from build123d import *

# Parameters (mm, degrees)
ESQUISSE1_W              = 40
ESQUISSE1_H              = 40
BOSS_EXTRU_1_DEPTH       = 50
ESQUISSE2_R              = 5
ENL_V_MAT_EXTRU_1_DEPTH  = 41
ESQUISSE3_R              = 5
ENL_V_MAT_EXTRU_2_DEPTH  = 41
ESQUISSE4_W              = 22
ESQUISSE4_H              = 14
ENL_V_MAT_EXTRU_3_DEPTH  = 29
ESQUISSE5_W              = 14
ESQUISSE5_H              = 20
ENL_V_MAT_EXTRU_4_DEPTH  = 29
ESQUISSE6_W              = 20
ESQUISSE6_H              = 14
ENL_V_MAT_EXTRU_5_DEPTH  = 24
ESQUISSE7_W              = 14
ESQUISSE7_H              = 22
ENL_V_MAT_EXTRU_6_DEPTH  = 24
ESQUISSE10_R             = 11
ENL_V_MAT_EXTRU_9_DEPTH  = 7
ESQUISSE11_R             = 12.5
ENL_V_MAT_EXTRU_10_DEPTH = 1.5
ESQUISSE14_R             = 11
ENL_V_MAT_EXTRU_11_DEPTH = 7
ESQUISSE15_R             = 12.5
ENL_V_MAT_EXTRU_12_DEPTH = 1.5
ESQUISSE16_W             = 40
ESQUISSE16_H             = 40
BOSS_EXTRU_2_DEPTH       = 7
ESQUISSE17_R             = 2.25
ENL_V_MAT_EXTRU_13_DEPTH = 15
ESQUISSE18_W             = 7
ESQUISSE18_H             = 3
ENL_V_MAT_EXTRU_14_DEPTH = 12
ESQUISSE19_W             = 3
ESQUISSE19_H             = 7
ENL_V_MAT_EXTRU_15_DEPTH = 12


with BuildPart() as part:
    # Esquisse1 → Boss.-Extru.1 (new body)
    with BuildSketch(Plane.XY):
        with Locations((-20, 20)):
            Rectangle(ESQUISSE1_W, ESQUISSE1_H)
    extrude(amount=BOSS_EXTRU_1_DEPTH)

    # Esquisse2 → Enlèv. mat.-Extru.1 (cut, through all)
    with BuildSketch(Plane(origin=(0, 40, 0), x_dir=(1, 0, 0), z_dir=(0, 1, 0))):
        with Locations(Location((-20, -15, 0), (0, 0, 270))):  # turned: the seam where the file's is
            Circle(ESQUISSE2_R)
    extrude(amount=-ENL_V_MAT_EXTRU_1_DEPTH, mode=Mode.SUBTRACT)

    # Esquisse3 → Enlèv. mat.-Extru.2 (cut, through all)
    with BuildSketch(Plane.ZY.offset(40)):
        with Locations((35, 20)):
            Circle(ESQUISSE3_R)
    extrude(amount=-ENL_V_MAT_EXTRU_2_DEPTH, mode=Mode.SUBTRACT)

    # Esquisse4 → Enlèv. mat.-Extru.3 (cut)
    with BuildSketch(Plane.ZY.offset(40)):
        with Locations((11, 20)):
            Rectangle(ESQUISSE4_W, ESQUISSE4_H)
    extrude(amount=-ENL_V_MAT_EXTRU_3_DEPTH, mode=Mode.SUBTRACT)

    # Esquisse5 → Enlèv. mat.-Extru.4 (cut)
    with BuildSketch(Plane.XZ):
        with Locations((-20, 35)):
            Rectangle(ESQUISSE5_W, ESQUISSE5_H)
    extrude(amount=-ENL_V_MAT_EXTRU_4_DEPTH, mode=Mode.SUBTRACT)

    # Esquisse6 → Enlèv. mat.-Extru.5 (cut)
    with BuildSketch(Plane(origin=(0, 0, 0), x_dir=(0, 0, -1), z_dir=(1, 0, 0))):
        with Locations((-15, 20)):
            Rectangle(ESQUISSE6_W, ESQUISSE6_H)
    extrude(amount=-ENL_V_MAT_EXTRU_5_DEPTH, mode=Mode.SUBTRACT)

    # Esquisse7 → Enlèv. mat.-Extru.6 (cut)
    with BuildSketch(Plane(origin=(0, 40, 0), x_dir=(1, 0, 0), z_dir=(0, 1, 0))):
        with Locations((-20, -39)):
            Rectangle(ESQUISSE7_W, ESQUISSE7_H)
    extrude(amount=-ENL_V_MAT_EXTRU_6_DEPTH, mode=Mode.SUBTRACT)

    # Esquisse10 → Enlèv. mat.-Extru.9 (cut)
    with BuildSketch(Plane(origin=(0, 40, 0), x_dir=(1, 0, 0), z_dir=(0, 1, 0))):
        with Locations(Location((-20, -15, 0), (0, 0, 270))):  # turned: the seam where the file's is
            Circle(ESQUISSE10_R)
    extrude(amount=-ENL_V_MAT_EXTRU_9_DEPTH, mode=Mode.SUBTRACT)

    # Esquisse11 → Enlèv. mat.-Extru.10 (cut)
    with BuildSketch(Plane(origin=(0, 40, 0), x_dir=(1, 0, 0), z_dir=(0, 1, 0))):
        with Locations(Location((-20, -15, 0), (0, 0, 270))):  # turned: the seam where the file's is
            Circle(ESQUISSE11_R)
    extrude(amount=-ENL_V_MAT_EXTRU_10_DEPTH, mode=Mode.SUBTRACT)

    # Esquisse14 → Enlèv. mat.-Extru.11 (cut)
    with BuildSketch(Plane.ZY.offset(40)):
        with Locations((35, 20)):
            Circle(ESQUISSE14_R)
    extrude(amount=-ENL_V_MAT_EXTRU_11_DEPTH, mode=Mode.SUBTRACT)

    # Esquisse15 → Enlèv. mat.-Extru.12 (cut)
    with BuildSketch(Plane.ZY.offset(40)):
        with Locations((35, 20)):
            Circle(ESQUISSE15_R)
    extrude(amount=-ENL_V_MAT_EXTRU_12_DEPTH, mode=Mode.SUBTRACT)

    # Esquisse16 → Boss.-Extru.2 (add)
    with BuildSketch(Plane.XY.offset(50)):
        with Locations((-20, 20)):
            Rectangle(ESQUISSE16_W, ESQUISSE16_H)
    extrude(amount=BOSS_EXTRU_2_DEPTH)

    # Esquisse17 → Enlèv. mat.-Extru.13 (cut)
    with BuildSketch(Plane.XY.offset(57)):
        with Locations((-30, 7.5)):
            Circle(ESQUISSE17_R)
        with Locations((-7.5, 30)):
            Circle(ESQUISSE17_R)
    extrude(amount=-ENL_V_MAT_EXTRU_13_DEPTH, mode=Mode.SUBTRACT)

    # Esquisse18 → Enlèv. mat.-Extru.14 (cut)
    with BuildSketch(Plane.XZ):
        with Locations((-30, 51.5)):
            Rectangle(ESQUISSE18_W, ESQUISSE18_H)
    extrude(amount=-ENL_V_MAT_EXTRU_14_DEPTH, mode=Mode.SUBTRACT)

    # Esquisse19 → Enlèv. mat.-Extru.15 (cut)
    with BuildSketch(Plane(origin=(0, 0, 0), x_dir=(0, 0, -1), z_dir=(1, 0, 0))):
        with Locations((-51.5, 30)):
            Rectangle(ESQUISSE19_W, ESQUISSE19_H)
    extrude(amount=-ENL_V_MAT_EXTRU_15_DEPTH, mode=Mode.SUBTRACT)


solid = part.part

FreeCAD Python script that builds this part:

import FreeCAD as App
import Part
import Sketcher

V = App.Vector
Q = App.Units.Quantity

doc = App.newDocument("Part")
body = doc.addObject("PartDesign::Body", "Body")

sketch1 = body.newObject("Sketcher::SketchObject", "Sketch")
sketch1.AttachmentSupport = (doc.getObject("XY_Plane"), [""])
sketch1.MapMode = "FlatFace"
sketch1.addGeometry(Part.LineSegment(V(-40, 40, 0), V(-40, 0, 0)), False)
sketch1.addGeometry(Part.LineSegment(V(-40, 0, 0), V(0, 0, 0)), False)
sketch1.addGeometry(Part.LineSegment(V(0, 0, 0), V(0, 40, 0)), False)
sketch1.addGeometry(Part.LineSegment(V(0, 40, 0), V(-40, 40, 0)), False)
sketch1.addConstraint(Sketcher.Constraint("Coincident", 0, 2, 1, 1))
sketch1.addConstraint(Sketcher.Constraint("Coincident", 1, 2, 2, 1))
sketch1.addConstraint(Sketcher.Constraint("Coincident", 2, 2, 3, 1))
sketch1.addConstraint(Sketcher.Constraint("Coincident", 3, 2, 0, 1))
sketch1.addConstraint(Sketcher.Constraint("Vertical", 0))
sketch1.addConstraint(Sketcher.Constraint("Horizontal", 1))
sketch1.addConstraint(Sketcher.Constraint("Vertical", 2))
sketch1.addConstraint(Sketcher.Constraint("Horizontal", 3))
sketch1.addConstraint(Sketcher.Constraint("Coincident", 1, 2, -1, 1))
sketch1.addConstraint(Sketcher.Constraint("Equal", 3, 0))
sketch1.addConstraint(Sketcher.Constraint("DistanceX", 1, 1, 1, 2, Q("40 mm")))
pad1 = body.newObject("PartDesign::Pad", "Pad")
pad1.Profile = sketch1
pad1.Length = 50

sketch2 = body.newObject("Sketcher::SketchObject", "Sketch001")
sketch2.AttachmentSupport = (doc.getObject("XZ_Plane"), [""])
sketch2.MapMode = "FlatFace"
sketch2.AttachmentOffset = App.Placement(V(0, 0, -40), App.Rotation())
sketch2.addGeometry(Part.Circle(V(-20, 15, 0), V(0, 0, 1), 5), False)
sketch2.addConstraint(Sketcher.Constraint("Diameter", 0, Q("10 mm")))
sketch2.addConstraint(Sketcher.Constraint("DistanceX", 0, 3, -1, 1, Q("20 mm")))
sketch2.addConstraint(Sketcher.Constraint("DistanceY", -1, 1, 0, 3, Q("15 mm")))
pocket1 = body.newObject("PartDesign::Pocket", "Pocket")
pocket1.Profile = sketch2
pocket1.Type = "ThroughAll"
pocket1.Reversed = True

sketch3 = body.newObject("Sketcher::SketchObject", "Sketch002")
sketch3.AttachmentSupport = (doc.getObject("YZ_Plane"), [""])
sketch3.MapMode = "FlatFace"
sketch3.AttachmentOffset = App.Placement(V(0, 0, -40), App.Rotation())
sketch3.addGeometry(Part.Circle(V(20, 35, 0), V(0, 0, 1), 5), False)
sketch3.addConstraint(Sketcher.Constraint("Diameter", 0, Q("10 mm")))
sketch3.addConstraint(Sketcher.Constraint("DistanceX", -1, 1, 0, 3, Q("20 mm")))
sketch3.addConstraint(Sketcher.Constraint("DistanceY", -1, 1, 0, 3, Q("35 mm")))
pocket2 = body.newObject("PartDesign::Pocket", "Pocket001")
pocket2.Profile = sketch3
pocket2.Type = "ThroughAll"
pocket2.Reversed = True

sketch4 = body.newObject("Sketcher::SketchObject", "Sketch003")
sketch4.AttachmentSupport = (doc.getObject("YZ_Plane"), [""])
sketch4.MapMode = "FlatFace"
sketch4.AttachmentOffset = App.Placement(V(0, 0, -40), App.Rotation())
sketch4.addGeometry(Part.LineSegment(V(27, 0, 0), V(13, 0, 0)), False)
sketch4.addGeometry(Part.LineSegment(V(13, 0, 0), V(13, 22, 0)), False)
sketch4.addGeometry(Part.LineSegment(V(13, 22, 0), V(27, 22, 0)), False)
sketch4.addGeometry(Part.LineSegment(V(27, 22, 0), V(27, 0, 0)), False)
sketch4.addConstraint(Sketcher.Constraint("Coincident", 0, 2, 1, 1))
sketch4.addConstraint(Sketcher.Constraint("Coincident", 1, 2, 2, 1))
sketch4.addConstraint(Sketcher.Constraint("Coincident", 2, 2, 3, 1))
sketch4.addConstraint(Sketcher.Constraint("Coincident", 3, 2, 0, 1))
sketch4.addConstraint(Sketcher.Constraint("Horizontal", 0))
sketch4.addConstraint(Sketcher.Constraint("Vertical", 1))
sketch4.addConstraint(Sketcher.Constraint("Horizontal", 2))
sketch4.addConstraint(Sketcher.Constraint("Vertical", 3))
sketch4.addConstraint(Sketcher.Constraint("PointOnObject", 0, 2, -1))
sketch4.addConstraint(Sketcher.Constraint("DistanceX", 0, 2, 0, 1, Q("14 mm")))
sketch4.addConstraint(Sketcher.Constraint("DistanceY", 1, 1, 1, 2, Q("22 mm")))
sketch4.addConstraint(Sketcher.Constraint("DistanceX", -1, 1, 0, 2, Q("13 mm")))
pocket3 = body.newObject("PartDesign::Pocket", "Pocket002")
pocket3.Profile = sketch4
pocket3.Length = 29
pocket3.Reversed = True

sketch5 = body.newObject("Sketcher::SketchObject", "Sketch004")
sketch5.AttachmentSupport = (doc.getObject("XZ_Plane"), [""])
sketch5.MapMode = "FlatFace"
sketch5.addGeometry(Part.LineSegment(V(-27, 45, 0), V(-27, 25, 0)), False)
sketch5.addGeometry(Part.LineSegment(V(-27, 25, 0), V(-13, 25, 0)), False)
sketch5.addGeometry(Part.LineSegment(V(-13, 25, 0), V(-13, 45, 0)), False)
sketch5.addGeometry(Part.LineSegment(V(-13, 45, 0), V(-27, 45, 0)), False)
sketch5.addConstraint(Sketcher.Constraint("Coincident", 0, 2, 1, 1))
sketch5.addConstraint(Sketcher.Constraint("Coincident", 1, 2, 2, 1))
sketch5.addConstraint(Sketcher.Constraint("Coincident", 2, 2, 3, 1))
sketch5.addConstraint(Sketcher.Constraint("Coincident", 3, 2, 0, 1))
sketch5.addConstraint(Sketcher.Constraint("Vertical", 0))
sketch5.addConstraint(Sketcher.Constraint("Horizontal", 1))
sketch5.addConstraint(Sketcher.Constraint("Vertical", 2))
sketch5.addConstraint(Sketcher.Constraint("Horizontal", 3))
sketch5.addConstraint(Sketcher.Constraint("DistanceX", 1, 1, 1, 2, Q("14 mm")))
sketch5.addConstraint(Sketcher.Constraint("DistanceY", 0, 2, 0, 1, Q("20 mm")))
sketch5.addConstraint(Sketcher.Constraint("DistanceX", 0, 2, -1, 1, Q("27 mm")))
sketch5.addConstraint(Sketcher.Constraint("DistanceY", -1, 1, 0, 2, Q("25 mm")))
pocket4 = body.newObject("PartDesign::Pocket", "Pocket003")
pocket4.Profile = sketch5
pocket4.Length = 29

sketch6 = body.newObject("Sketcher::SketchObject", "Sketch005")
sketch6.AttachmentSupport = (doc.getObject("YZ_Plane"), [""])
sketch6.MapMode = "FlatFace"
sketch6.addGeometry(Part.LineSegment(V(27, 25, 0), V(13, 25, 0)), False)
sketch6.addGeometry(Part.LineSegment(V(13, 25, 0), V(13, 5, 0)), False)
sketch6.addGeometry(Part.LineSegment(V(13, 5, 0), V(27, 5, 0)), False)
sketch6.addGeometry(Part.LineSegment(V(27, 5, 0), V(27, 25, 0)), False)
sketch6.addConstraint(Sketcher.Constraint("Coincident", 0, 2, 1, 1))
sketch6.addConstraint(Sketcher.Constraint("Coincident", 1, 2, 2, 1))
sketch6.addConstraint(Sketcher.Constraint("Coincident", 2, 2, 3, 1))
sketch6.addConstraint(Sketcher.Constraint("Coincident", 3, 2, 0, 1))
sketch6.addConstraint(Sketcher.Constraint("Horizontal", 0))
sketch6.addConstraint(Sketcher.Constraint("Vertical", 1))
sketch6.addConstraint(Sketcher.Constraint("Horizontal", 2))
sketch6.addConstraint(Sketcher.Constraint("Vertical", 3))
sketch6.addConstraint(Sketcher.Constraint("DistanceX", 0, 2, 0, 1, Q("14 mm")))
sketch6.addConstraint(Sketcher.Constraint("DistanceY", 1, 2, 1, 1, Q("20 mm")))
sketch6.addConstraint(Sketcher.Constraint("DistanceX", -1, 1, 0, 2, Q("13 mm")))
sketch6.addConstraint(Sketcher.Constraint("DistanceY", -1, 1, 0, 2, Q("25 mm")))
pocket5 = body.newObject("PartDesign::Pocket", "Pocket004")
pocket5.Profile = sketch6
pocket5.Length = 24

sketch7 = body.newObject("Sketcher::SketchObject", "Sketch006")
sketch7.AttachmentSupport = (doc.getObject("XZ_Plane"), [""])
sketch7.MapMode = "FlatFace"
sketch7.AttachmentOffset = App.Placement(V(0, 0, -40), App.Rotation())
sketch7.addGeometry(Part.LineSegment(V(-27, 28, 0), V(-27, 50, 0)), False)
sketch7.addGeometry(Part.LineSegment(V(-27, 50, 0), V(-13, 50, 0)), False)
sketch7.addGeometry(Part.LineSegment(V(-13, 50, 0), V(-13, 28, 0)), False)
sketch7.addGeometry(Part.LineSegment(V(-13, 28, 0), V(-27, 28, 0)), False)
sketch7.addConstraint(Sketcher.Constraint("Coincident", 0, 2, 1, 1))
sketch7.addConstraint(Sketcher.Constraint("Coincident", 1, 2, 2, 1))
sketch7.addConstraint(Sketcher.Constraint("Coincident", 2, 2, 3, 1))
sketch7.addConstraint(Sketcher.Constraint("Coincident", 3, 2, 0, 1))
sketch7.addConstraint(Sketcher.Constraint("Vertical", 0))
sketch7.addConstraint(Sketcher.Constraint("Horizontal", 1))
sketch7.addConstraint(Sketcher.Constraint("Vertical", 2))
sketch7.addConstraint(Sketcher.Constraint("Horizontal", 3))
sketch7.addConstraint(Sketcher.Constraint("DistanceX", 1, 1, 1, 2, Q("14 mm")))
sketch7.addConstraint(Sketcher.Constraint("DistanceY", 0, 1, 0, 2, Q("22 mm")))
sketch7.addConstraint(Sketcher.Constraint("DistanceX", 0, 2, -1, 1, Q("27 mm")))
sketch7.addConstraint(Sketcher.Constraint("DistanceY", -1, 1, 0, 2, Q("50 mm")))
pocket6 = body.newObject("PartDesign::Pocket", "Pocket005")
pocket6.Profile = sketch7
pocket6.Length = 24
pocket6.Reversed = True

sketch8 = body.newObject("Sketcher::SketchObject", "Sketch007")
sketch8.AttachmentSupport = (doc.getObject("XZ_Plane"), [""])
sketch8.MapMode = "FlatFace"
sketch8.AttachmentOffset = App.Placement(V(0, 0, -40), App.Rotation())
sketch8.addGeometry(Part.Circle(V(-20, 15, 0), V(0, 0, 1), 11), False)
sketch8.addConstraint(Sketcher.Constraint("Diameter", 0, Q("22 mm")))
sketch8.addConstraint(Sketcher.Constraint("DistanceX", 0, 3, -1, 1, Q("20 mm")))
sketch8.addConstraint(Sketcher.Constraint("DistanceY", -1, 1, 0, 3, Q("15 mm")))
pocket7 = body.newObject("PartDesign::Pocket", "Pocket006")
pocket7.Profile = sketch8
pocket7.Length = 7
pocket7.Reversed = True

sketch9 = body.newObject("Sketcher::SketchObject", "Sketch008")
sketch9.AttachmentSupport = (doc.getObject("XZ_Plane"), [""])
sketch9.MapMode = "FlatFace"
sketch9.AttachmentOffset = App.Placement(V(0, 0, -40), App.Rotation())
sketch9.addGeometry(Part.Circle(V(-20, 15, 0), V(0, 0, 1), 12), False)
sketch9.addConstraint(Sketcher.Constraint("Diameter", 0, Q("25 mm")))
sketch9.addConstraint(Sketcher.Constraint("DistanceX", 0, 3, -1, 1, Q("20 mm")))
sketch9.addConstraint(Sketcher.Constraint("DistanceY", -1, 1, 0, 3, Q("15 mm")))
pocket8 = body.newObject("PartDesign::Pocket", "Pocket007")
pocket8.Profile = sketch9
pocket8.Length = 1.5
pocket8.Reversed = True

sketch10 = body.newObject("Sketcher::SketchObject", "Sketch009")
sketch10.AttachmentSupport = (doc.getObject("YZ_Plane"), [""])
sketch10.MapMode = "FlatFace"
sketch10.AttachmentOffset = App.Placement(V(0, 0, -40), App.Rotation())
sketch10.addGeometry(Part.Circle(V(20, 35, 0), V(0, 0, 1), 11), False)
sketch10.addConstraint(Sketcher.Constraint("Diameter", 0, Q("22 mm")))
sketch10.addConstraint(Sketcher.Constraint("DistanceX", -1, 1, 0, 3, Q("20 mm")))
sketch10.addConstraint(Sketcher.Constraint("DistanceY", -1, 1, 0, 3, Q("35 mm")))
pocket9 = body.newObject("PartDesign::Pocket", "Pocket008")
pocket9.Profile = sketch10
pocket9.Length = 7
pocket9.Reversed = True

sketch11 = body.newObject("Sketcher::SketchObject", "Sketch010")
sketch11.AttachmentSupport = (doc.getObject("YZ_Plane"), [""])
sketch11.MapMode = "FlatFace"
sketch11.AttachmentOffset = App.Placement(V(0, 0, -40), App.Rotation())
sketch11.addGeometry(Part.Circle(V(20, 35, 0), V(0, 0, 1), 12), False)
sketch11.addConstraint(Sketcher.Constraint("Diameter", 0, Q("25 mm")))
sketch11.addConstraint(Sketcher.Constraint("DistanceX", -1, 1, 0, 3, Q("20 mm")))
sketch11.addConstraint(Sketcher.Constraint("DistanceY", -1, 1, 0, 3, Q("35 mm")))
pocket10 = body.newObject("PartDesign::Pocket", "Pocket009")
pocket10.Profile = sketch11
pocket10.Length = 1.5
pocket10.Reversed = True

sketch12 = body.newObject("Sketcher::SketchObject", "Sketch011")
sketch12.AttachmentSupport = (doc.getObject("XY_Plane"), [""])
sketch12.MapMode = "FlatFace"
sketch12.AttachmentOffset = App.Placement(V(0, 0, 50), App.Rotation())
sketch12.addGeometry(Part.LineSegment(V(-40, 40, 0), V(-40, 0, 0)), False)
sketch12.addGeometry(Part.LineSegment(V(-40, 0, 0), V(0, 0, 0)), False)
sketch12.addGeometry(Part.LineSegment(V(0, 0, 0), V(0, 40, 0)), False)
sketch12.addGeometry(Part.LineSegment(V(0, 40, 0), V(-40, 40, 0)), False)
sketch12.addConstraint(Sketcher.Constraint("Coincident", 0, 2, 1, 1))
sketch12.addConstraint(Sketcher.Constraint("Coincident", 1, 2, 2, 1))
sketch12.addConstraint(Sketcher.Constraint("Coincident", 2, 2, 3, 1))
sketch12.addConstraint(Sketcher.Constraint("Coincident", 3, 2, 0, 1))
sketch12.addConstraint(Sketcher.Constraint("Vertical", 0))
sketch12.addConstraint(Sketcher.Constraint("Horizontal", 1))
sketch12.addConstraint(Sketcher.Constraint("Vertical", 2))
sketch12.addConstraint(Sketcher.Constraint("Horizontal", 3))
sketch12.addConstraint(Sketcher.Constraint("Coincident", 1, 2, -1, 1))
sketch12.addConstraint(Sketcher.Constraint("Equal", 3, 0))
sketch12.addConstraint(Sketcher.Constraint("DistanceX", 1, 1, 1, 2, Q("40 mm")))
pad2 = body.newObject("PartDesign::Pad", "Pad001")
pad2.Profile = sketch12
pad2.Length = 7

sketch13 = body.newObject("Sketcher::SketchObject", "Sketch012")
sketch13.AttachmentSupport = (doc.getObject("XY_Plane"), [""])
sketch13.MapMode = "FlatFace"
sketch13.AttachmentOffset = App.Placement(V(0, 0, 57), App.Rotation())
sketch13.addGeometry(Part.Circle(V(-30, 7.5, 0), V(0, 0, 1), 2.2), False)
sketch13.addGeometry(Part.Circle(V(-7.5, 30, 0), V(0, 0, 1), 2.2), False)
sketch13.addConstraint(Sketcher.Constraint("Equal", 0, 1))
sketch13.addConstraint(Sketcher.Constraint("Diameter", 0, Q("4.5 mm")))
sketch13.addConstraint(Sketcher.Constraint("DistanceX", 0, 3, -1, 1, Q("30 mm")))
sketch13.addConstraint(Sketcher.Constraint("DistanceY", -1, 1, 1, 3, Q("30 mm")))
sketch13.addConstraint(Sketcher.Constraint("DistanceY", -1, 1, 0, 3, Q("7.5 mm")))
sketch13.addConstraint(Sketcher.Constraint("DistanceX", 1, 3, -1, 1, Q("7.5 mm")))
pocket11 = body.newObject("PartDesign::Pocket", "Pocket010")
pocket11.Profile = sketch13
pocket11.Length = 15

sketch14 = body.newObject("Sketcher::SketchObject", "Sketch013")
sketch14.AttachmentSupport = (doc.getObject("XZ_Plane"), [""])
sketch14.MapMode = "FlatFace"
sketch14.addGeometry(Part.LineSegment(V(-33.5, 53, 0), V(-33.5, 50, 0)), False)
sketch14.addGeometry(Part.LineSegment(V(-33.5, 50, 0), V(-26.5, 50, 0)), False)
sketch14.addGeometry(Part.LineSegment(V(-26.5, 50, 0), V(-26.5, 53, 0)), False)
sketch14.addGeometry(Part.LineSegment(V(-26.5, 53, 0), V(-33.5, 53, 0)), False)
sketch14.addConstraint(Sketcher.Constraint("Coincident", 0, 2, 1, 1))
sketch14.addConstraint(Sketcher.Constraint("Coincident", 1, 2, 2, 1))
sketch14.addConstraint(Sketcher.Constraint("Coincident", 2, 2, 3, 1))
sketch14.addConstraint(Sketcher.Constraint("Coincident", 3, 2, 0, 1))
sketch14.addConstraint(Sketcher.Constraint("Vertical", 0))
sketch14.addConstraint(Sketcher.Constraint("Horizontal", 1))
sketch14.addConstraint(Sketcher.Constraint("Vertical", 2))
sketch14.addConstraint(Sketcher.Constraint("Horizontal", 3))
sketch14.addConstraint(Sketcher.Constraint("DistanceX", 1, 1, 1, 2, Q("7 mm")))
sketch14.addConstraint(Sketcher.Constraint("DistanceY", 0, 2, 0, 1, Q("3 mm")))
sketch14.addConstraint(Sketcher.Constraint("DistanceY", -1, 1, 0, 2, Q("50 mm")))
sketch14.addConstraint(Sketcher.Constraint("DistanceX", 0, 2, -1, 1, Q("33.5 mm")))
pocket12 = body.newObject("PartDesign::Pocket", "Pocket011")
pocket12.Profile = sketch14
pocket12.Length = 12

sketch15 = body.newObject("Sketcher::SketchObject", "Sketch014")
sketch15.AttachmentSupport = (doc.getObject("YZ_Plane"), [""])
sketch15.MapMode = "FlatFace"
sketch15.addGeometry(Part.LineSegment(V(33.5, 53, 0), V(26.5, 53, 0)), False)
sketch15.addGeometry(Part.LineSegment(V(26.5, 53, 0), V(26.5, 50, 0)), False)
sketch15.addGeometry(Part.LineSegment(V(26.5, 50, 0), V(33.5, 50, 0)), False)
sketch15.addGeometry(Part.LineSegment(V(33.5, 50, 0), V(33.5, 53, 0)), False)
sketch15.addConstraint(Sketcher.Constraint("Coincident", 0, 2, 1, 1))
sketch15.addConstraint(Sketcher.Constraint("Coincident", 1, 2, 2, 1))
sketch15.addConstraint(Sketcher.Constraint("Coincident", 2, 2, 3, 1))
sketch15.addConstraint(Sketcher.Constraint("Coincident", 3, 2, 0, 1))
sketch15.addConstraint(Sketcher.Constraint("Horizontal", 0))
sketch15.addConstraint(Sketcher.Constraint("Vertical", 1))
sketch15.addConstraint(Sketcher.Constraint("Horizontal", 2))
sketch15.addConstraint(Sketcher.Constraint("Vertical", 3))
sketch15.addConstraint(Sketcher.Constraint("DistanceX", 0, 2, 0, 1, Q("7 mm")))
sketch15.addConstraint(Sketcher.Constraint("DistanceY", 1, 2, 1, 1, Q("3 mm")))
sketch15.addConstraint(Sketcher.Constraint("DistanceY", -1, 1, 0, 2, Q("53 mm")))
sketch15.addConstraint(Sketcher.Constraint("DistanceX", -1, 1, 0, 2, Q("26.5 mm")))
pocket13 = body.newObject("PartDesign::Pocket", "Pocket012")
pocket13.Profile = sketch15
pocket13.Length = 12

doc.recompute()
